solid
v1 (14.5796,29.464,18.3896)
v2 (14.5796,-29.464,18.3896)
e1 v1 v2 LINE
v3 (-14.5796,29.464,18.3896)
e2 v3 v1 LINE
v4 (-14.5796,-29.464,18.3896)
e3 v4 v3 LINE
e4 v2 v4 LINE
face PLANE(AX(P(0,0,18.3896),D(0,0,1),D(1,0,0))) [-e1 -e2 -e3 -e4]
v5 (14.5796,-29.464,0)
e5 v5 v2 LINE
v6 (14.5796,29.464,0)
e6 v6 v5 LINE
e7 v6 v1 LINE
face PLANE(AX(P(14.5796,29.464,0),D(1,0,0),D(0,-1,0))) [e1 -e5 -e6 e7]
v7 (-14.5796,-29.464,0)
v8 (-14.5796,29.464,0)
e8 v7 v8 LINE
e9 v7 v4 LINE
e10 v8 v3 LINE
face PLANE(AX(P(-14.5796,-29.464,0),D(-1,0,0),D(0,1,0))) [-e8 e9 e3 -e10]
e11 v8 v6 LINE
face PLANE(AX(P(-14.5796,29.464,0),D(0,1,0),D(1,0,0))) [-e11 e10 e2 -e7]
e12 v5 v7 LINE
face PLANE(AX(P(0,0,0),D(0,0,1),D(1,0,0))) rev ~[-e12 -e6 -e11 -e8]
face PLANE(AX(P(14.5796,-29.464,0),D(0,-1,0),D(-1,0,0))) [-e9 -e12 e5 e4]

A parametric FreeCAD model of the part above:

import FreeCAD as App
import Part
import Sketcher

V = App.Vector
Q = App.Units.Quantity


def add_polygon(sketch, points):
    """Adds a closed chain of lines whose ends are joined by coincident constraints."""
    first, n = sketch.GeometryCount, len(points)
    for a, b in zip(points, points[1:] + points[:1]):
        sketch.addGeometry(Part.LineSegment(App.Vector(*a, 0), App.Vector(*b, 0)), False)
    for i in range(n):
        sketch.addConstraint(Sketcher.Constraint("Coincident", first + i, 2, first + (i + 1) % n, 1))

doc = App.newDocument("Part")
body = doc.addObject("PartDesign::Body", "Body")

sketch1 = doc.addObject("Sketcher::SketchObject", "Sketch")
body.addObject(sketch1)
sketch1.AttachmentSupport = (doc.XY_Plane, [""])
sketch1.MapMode = "FlatFace"
add_polygon(sketch1, [(15, 29), (-15, 29), (-15, -29), (15, -29)])
sketch1.addConstraint(Sketcher.Constraint("Horizontal", 0))
sketch1.addConstraint(Sketcher.Constraint("Vertical", 1))
sketch1.addConstraint(Sketcher.Constraint("Horizontal", 2))
sketch1.addConstraint(Sketcher.Constraint("Vertical", 3))
sketch1.addConstraint(Sketcher.Constraint("Symmetric", 0, 2, 2, 2, -1, 1))
sketch1.addConstraint(Sketcher.Constraint("DistanceY", 1, 2, 1, 1, Q("2.32 in")))
sketch1.addConstraint(Sketcher.Constraint("DistanceX", 0, 2, 0, 1, Q("1.148 in")))
pad1 = doc.addObject("PartDesign::Pad", "Pad")
body.addObject(pad1)
pad1.Profile = sketch1
pad1.Length = Q("0.724 in")

doc.recompute()
